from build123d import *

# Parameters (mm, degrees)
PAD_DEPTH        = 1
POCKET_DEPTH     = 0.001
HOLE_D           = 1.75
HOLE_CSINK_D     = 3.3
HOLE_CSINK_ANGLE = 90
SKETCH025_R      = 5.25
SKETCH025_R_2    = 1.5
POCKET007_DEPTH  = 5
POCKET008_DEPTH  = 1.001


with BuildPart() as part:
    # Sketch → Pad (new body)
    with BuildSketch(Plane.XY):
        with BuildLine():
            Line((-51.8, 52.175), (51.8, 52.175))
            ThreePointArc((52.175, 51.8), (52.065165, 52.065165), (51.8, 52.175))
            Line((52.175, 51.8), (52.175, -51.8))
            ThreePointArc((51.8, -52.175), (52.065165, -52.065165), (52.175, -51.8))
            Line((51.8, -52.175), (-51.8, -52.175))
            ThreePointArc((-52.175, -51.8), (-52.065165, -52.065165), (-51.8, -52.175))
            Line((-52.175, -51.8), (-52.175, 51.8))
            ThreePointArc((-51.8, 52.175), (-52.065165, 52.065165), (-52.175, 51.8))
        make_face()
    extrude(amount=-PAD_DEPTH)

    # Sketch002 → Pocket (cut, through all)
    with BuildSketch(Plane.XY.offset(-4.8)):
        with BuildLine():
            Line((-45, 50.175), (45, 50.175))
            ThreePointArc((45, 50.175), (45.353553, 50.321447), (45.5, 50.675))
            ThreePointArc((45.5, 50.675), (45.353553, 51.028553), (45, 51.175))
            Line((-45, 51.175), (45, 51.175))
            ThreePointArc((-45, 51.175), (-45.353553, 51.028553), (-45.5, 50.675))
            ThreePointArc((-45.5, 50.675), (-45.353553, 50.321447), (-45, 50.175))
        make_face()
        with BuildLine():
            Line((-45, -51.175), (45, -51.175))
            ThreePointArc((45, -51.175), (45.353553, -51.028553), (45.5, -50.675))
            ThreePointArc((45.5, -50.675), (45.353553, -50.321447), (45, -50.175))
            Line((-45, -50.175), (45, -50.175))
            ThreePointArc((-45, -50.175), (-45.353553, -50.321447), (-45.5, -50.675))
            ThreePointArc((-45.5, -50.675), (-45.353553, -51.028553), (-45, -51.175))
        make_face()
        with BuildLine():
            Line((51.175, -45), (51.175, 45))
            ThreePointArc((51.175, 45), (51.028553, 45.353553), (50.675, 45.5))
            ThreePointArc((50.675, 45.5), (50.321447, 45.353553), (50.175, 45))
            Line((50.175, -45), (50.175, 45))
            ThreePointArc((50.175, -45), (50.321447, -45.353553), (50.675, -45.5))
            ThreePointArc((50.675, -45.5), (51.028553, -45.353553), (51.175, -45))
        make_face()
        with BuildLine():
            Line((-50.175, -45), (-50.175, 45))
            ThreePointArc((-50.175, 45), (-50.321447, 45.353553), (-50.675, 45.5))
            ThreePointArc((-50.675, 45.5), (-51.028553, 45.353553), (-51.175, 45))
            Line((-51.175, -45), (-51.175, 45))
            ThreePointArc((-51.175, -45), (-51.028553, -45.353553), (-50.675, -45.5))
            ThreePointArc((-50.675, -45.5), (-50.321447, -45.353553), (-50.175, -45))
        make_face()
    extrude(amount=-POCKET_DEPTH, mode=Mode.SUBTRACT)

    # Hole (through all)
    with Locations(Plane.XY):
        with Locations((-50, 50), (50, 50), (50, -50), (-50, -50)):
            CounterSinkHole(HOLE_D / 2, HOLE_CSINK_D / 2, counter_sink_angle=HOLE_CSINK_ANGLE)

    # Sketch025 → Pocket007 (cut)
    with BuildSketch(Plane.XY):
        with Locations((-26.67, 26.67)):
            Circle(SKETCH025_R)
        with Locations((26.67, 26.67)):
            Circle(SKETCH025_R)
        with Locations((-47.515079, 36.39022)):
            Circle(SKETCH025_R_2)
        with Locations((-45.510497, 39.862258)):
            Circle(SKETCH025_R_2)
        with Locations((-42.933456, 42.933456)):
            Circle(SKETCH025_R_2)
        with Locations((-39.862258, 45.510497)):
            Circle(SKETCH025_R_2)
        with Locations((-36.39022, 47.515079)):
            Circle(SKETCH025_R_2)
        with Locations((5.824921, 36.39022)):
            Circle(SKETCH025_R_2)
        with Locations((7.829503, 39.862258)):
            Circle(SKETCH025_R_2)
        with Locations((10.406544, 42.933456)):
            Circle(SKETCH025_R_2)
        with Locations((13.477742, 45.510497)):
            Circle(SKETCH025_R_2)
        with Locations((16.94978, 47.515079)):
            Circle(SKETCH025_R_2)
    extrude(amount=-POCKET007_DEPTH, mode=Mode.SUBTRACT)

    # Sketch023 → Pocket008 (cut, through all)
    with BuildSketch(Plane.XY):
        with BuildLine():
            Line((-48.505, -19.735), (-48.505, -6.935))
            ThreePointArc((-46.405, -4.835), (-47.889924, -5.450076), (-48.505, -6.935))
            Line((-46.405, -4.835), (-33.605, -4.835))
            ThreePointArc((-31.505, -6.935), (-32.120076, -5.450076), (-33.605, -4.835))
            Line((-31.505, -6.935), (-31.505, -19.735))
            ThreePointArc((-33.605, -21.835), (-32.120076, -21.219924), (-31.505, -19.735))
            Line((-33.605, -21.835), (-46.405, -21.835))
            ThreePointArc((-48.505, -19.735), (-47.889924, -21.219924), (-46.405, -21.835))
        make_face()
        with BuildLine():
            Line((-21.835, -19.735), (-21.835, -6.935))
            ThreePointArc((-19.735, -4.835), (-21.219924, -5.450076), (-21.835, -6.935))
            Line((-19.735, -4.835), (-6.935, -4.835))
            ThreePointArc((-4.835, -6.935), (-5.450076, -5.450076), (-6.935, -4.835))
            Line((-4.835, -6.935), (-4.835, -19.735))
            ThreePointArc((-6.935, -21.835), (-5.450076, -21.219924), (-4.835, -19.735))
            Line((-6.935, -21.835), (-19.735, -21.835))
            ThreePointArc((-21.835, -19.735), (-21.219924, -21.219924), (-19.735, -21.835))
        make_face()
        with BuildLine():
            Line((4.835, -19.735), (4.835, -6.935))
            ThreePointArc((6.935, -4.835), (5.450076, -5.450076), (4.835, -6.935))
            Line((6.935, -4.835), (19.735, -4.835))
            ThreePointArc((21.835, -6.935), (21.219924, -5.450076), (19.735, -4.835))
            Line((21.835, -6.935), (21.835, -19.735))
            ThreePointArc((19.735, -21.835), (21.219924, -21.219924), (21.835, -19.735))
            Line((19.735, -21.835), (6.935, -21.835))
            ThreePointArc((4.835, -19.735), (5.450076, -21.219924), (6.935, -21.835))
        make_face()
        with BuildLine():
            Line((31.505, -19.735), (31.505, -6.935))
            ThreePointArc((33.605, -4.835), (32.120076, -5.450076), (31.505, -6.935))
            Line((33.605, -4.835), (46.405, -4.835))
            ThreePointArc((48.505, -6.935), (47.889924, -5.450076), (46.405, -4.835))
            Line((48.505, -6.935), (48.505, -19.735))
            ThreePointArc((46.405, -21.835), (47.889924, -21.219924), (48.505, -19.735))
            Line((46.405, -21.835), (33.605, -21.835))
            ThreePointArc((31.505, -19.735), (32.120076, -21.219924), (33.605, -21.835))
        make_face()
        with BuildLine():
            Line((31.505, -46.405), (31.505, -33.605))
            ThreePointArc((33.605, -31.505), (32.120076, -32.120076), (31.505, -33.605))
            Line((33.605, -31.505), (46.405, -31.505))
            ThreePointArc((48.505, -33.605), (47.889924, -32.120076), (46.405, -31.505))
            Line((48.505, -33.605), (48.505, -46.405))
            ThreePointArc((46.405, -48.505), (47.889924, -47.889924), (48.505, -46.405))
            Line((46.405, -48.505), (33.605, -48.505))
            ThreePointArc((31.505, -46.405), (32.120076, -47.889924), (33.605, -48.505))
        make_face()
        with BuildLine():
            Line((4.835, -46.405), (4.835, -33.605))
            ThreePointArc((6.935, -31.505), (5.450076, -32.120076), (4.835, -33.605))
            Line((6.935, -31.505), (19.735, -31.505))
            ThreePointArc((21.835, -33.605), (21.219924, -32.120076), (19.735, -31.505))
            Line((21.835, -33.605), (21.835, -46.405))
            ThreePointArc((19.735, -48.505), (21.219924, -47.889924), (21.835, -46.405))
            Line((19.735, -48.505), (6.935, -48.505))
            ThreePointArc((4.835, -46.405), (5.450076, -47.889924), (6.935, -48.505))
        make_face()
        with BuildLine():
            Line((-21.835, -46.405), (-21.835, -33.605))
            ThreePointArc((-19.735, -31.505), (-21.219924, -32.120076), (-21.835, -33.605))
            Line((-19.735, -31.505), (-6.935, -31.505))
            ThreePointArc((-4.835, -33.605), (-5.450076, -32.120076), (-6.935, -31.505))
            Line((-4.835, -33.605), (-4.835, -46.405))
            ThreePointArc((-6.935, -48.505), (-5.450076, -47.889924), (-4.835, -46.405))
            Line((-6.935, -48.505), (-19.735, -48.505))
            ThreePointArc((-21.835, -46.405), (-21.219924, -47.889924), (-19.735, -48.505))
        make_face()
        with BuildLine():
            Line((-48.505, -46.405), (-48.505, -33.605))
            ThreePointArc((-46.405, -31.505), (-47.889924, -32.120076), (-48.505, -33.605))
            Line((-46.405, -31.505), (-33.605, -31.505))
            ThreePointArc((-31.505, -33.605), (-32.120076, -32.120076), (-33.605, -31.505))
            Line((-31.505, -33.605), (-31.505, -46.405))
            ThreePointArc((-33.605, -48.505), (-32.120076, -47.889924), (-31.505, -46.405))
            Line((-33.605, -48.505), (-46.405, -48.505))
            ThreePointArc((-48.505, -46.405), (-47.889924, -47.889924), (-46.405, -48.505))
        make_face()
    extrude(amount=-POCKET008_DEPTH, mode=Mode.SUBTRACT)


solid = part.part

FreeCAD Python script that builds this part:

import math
import FreeCAD as App
import Part
import Sketcher
from FreeCAD import Vector

doc = App.newDocument("Part")
params = doc.addObject("Spreadsheet::Sheet", "Params")
for row, (alias, value) in enumerate([
    ("sketch1_width", "103.6 mm"),
    ("pad1_length", "1 mm"),
    ("sketch2_radius", "0.500001 mm"),
    ("sketch2_width", "90 mm"),
    ("sketch3_diameter", "1.75 mm"),
    ("hole_diameter", "1.75 mm"),
    ("hole_csink_diameter", "3.3 mm"),
    ("sketch4_diameter", "3 mm"),
    ("sketch4_diameter2", "10.5 mm"),
    ("pocket2_length", "5 mm"),
    ("sketch5_radius", "2.100001 mm"),
    ("sketch5_width", "12.8 mm"),
], start=1):
    params.set(f"A{row}", alias)
    params.set(f"B{row}", "=" + value)
    params.setAlias(f"B{row}", alias)

body = doc.addObject("PartDesign::Body", "Body")

# Sketch on XY plane
sketch1 = doc.addObject("Sketcher::SketchObject", "Sketch")
body.addObject(sketch1)
sketch1.AttachmentSupport = (doc.XY_Plane, [""])
sketch1.MapMode = "FlatFace"
sketch1.addGeometry(Part.LineSegment(Vector(51.8, 52.17, 0), Vector(-51.8, 52.17, 0)), False)
sketch1.addGeometry(Part.ArcOfCircle(Part.Circle(Vector(-51.8, 51.8, 0), Vector(0, 0, 1), 0.38), math.radians(90), math.radians(180)), False)
sketch1.addGeometry(Part.LineSegment(Vector(-52.17, 51.8, 0), Vector(-52.17, -51.8, 0)), False)
sketch1.addGeometry(Part.ArcOfCircle(Part.Circle(Vector(-51.8, -51.8, 0), Vector(0, 0, 1), 0.38), math.radians(-180), math.radians(-90)), False)
sketch1.addGeometry(Part.LineSegment(Vector(-51.8, -52.17, 0), Vector(51.8, -52.17, 0)), False)
sketch1.addGeometry(Part.ArcOfCircle(Part.Circle(Vector(51.8, -51.8, 0), Vector(0, 0, 1), 0.38), math.radians(-90), math.radians(0)), False)
sketch1.addGeometry(Part.LineSegment(Vector(52.17, -51.8, 0), Vector(52.17, 51.8, 0)), False)
sketch1.addGeometry(Part.ArcOfCircle(Part.Circle(Vector(51.8, 51.8, 0), Vector(0, 0, 1), 0.38), math.radians(0), math.radians(90)), False)
sketch1.addConstraint(Sketcher.Constraint("Tangent", 0, 2, 1, 1))
sketch1.addConstraint(Sketcher.Constraint("Tangent", 1, 2, 2, 1))
sketch1.addConstraint(Sketcher.Constraint("Tangent", 2, 2, 3, 1))
sketch1.addConstraint(Sketcher.Constraint("Tangent", 3, 2, 4, 1))
sketch1.addConstraint(Sketcher.Constraint("Tangent", 4, 2, 5, 1))
sketch1.addConstraint(Sketcher.Constraint("Tangent", 5, 2, 6, 1))
sketch1.addConstraint(Sketcher.Constraint("Tangent", 6, 2, 7, 1))
sketch1.addConstraint(Sketcher.Constraint("Tangent", 7, 2, 0, 1))
sketch1.addConstraint(Sketcher.Constraint("Horizontal", 0))
sketch1.addConstraint(Sketcher.Constraint("Vertical", 2))
sketch1.addConstraint(Sketcher.Constraint("Horizontal", 4))
sketch1.addConstraint(Sketcher.Constraint("Vertical", 6))
sketch1.addConstraint(Sketcher.Constraint("Equal", 1, 3))
sketch1.addConstraint(Sketcher.Constraint("Equal", 3, 5))
sketch1.addConstraint(Sketcher.Constraint("Equal", 5, 7))
sketch1.addConstraint(Sketcher.Constraint("Symmetric", 1, 3, 5, 3, -1, 1))
sketch1.addConstraint(Sketcher.Constraint("Equal", 4, 2))
sketch1.addConstraint(Sketcher.Constraint("DistanceX", 0, 2, 0, 1, 103.6))
sketch1.addConstraint(Sketcher.Constraint("Radius", 1, 0.375))
sketch1.setExpression("Constraints[17]", "Params.sketch1_width")
pad1 = doc.addObject("PartDesign::Pad", "Pad")
body.addObject(pad1)
pad1.Profile = sketch1
pad1.setExpression("Length", "Params.pad1_length")
pad1.Reversed = True

# Sketch on XY plane
sketch2 = doc.addObject("Sketcher::SketchObject", "Sketch001")
body.addObject(sketch2)
sketch2.AttachmentSupport = (doc.XY_Plane, [""])
sketch2.MapMode = "FlatFace"
sketch2.AttachmentOffset = App.Placement(Vector(0, 0, -4.8), App.Rotation())
sketch2.addGeometry(Part.LineSegment(Vector(-45, 50.2, 0), Vector(45, 50.2, 0)), False)
sketch2.addGeometry(Part.ArcOfCircle(Part.Circle(Vector(45, 50.7, 0), Vector(0, 0, 1), 0.5), math.radians(-90), math.radians(0)), False)
sketch2.addGeometry(Part.ArcOfCircle(Part.Circle(Vector(45, 50.7, 0), Vector(0, 0, 1), 0.5), math.radians(0), math.radians(90)), False)
sketch2.addGeometry(Part.LineSegment(Vector(45, 51.2, 0), Vector(-45, 51.2, 0)), False)
sketch2.addGeometry(Part.ArcOfCircle(Part.Circle(Vector(-45, 50.7, 0), Vector(0, 0, 1), 0.5), math.radians(90), math.radians(180)), False)
sketch2.addGeometry(Part.ArcOfCircle(Part.Circle(Vector(-45, 50.7, 0), Vector(0, 0, 1), 0.5), math.radians(-180), math.radians(-90)), False)
sketch2.addGeometry(Part.LineSegment(Vector(-45, -51.2, 0), Vector(45, -51.2, 0)), False)
sketch2.addGeometry(Part.ArcOfCircle(Part.Circle(Vector(45, -50.7, 0), Vector(0, 0, 1), 0.5), math.radians(-90), math.radians(0)), False)
sketch2.addGeometry(Part.ArcOfCircle(Part.Circle(Vector(45, -50.7, 0), Vector(0, 0, 1), 0.5), math.radians(0), math.radians(90)), False)
sketch2.addGeometry(Part.LineSegment(Vector(45, -50.2, 0), Vector(-45, -50.2, 0)), False)
sketch2.addGeometry(Part.ArcOfCircle(Part.Circle(Vector(-45, -50.7, 0), Vector(0, 0, 1), 0.5), math.radians(90), math.radians(180)), False)
sketch2.addGeometry(Part.ArcOfCircle(Part.Circle(Vector(-45, -50.7, 0), Vector(0, 0, 1), 0.5), math.radians(-180), math.radians(-90)), False)
sketch2.addGeometry(Part.LineSegment(Vector(51.2, -45, 0), Vector(51.2, 45, 0)), False)
sketch2.addGeometry(Part.ArcOfCircle(Part.Circle(Vector(50.7, 45, 0), Vector(0, 0, 1), 0.5), math.radians(0), math.radians(90)), False)
sketch2.addGeometry(Part.ArcOfCircle(Part.Circle(Vector(50.7, 45, 0), Vector(0, 0, 1), 0.5), math.radians(90), math.radians(180)), False)
sketch2.addGeometry(Part.LineSegment(Vector(50.2, 45, 0), Vector(50.2, -45, 0)), False)
sketch2.addGeometry(Part.ArcOfCircle(Part.Circle(Vector(50.7, -45, 0), Vector(0, 0, 1), 0.5), math.radians(-180), math.radians(-90)), False)
sketch2.addGeometry(Part.ArcOfCircle(Part.Circle(Vector(50.7, -45, 0), Vector(0, 0, 1), 0.5), math.radians(-90), math.radians(0)), False)
sketch2.addGeometry(Part.LineSegment(Vector(-50.2, -45, 0), Vector(-50.2, 45, 0)), False)
sketch2.addGeometry(Part.ArcOfCircle(Part.Circle(Vector(-50.7, 45, 0), Vector(0, 0, 1), 0.5), math.radians(0), math.radians(90)), False)
sketch2.addGeometry(Part.ArcOfCircle(Part.Circle(Vector(-50.7, 45, 0), Vector(0, 0, 1), 0.5), math.radians(90), math.radians(180)), False)
sketch2.addGeometry(Part.LineSegment(Vector(-51.2, 45, 0), Vector(-51.2, -45, 0)), False)
sketch2.addGeometry(Part.ArcOfCircle(Part.Circle(Vector(-50.7, -45, 0), Vector(0, 0, 1), 0.5), math.radians(-180), math.radians(-90)), False)
sketch2.addGeometry(Part.ArcOfCircle(Part.Circle(Vector(-50.7, -45, 0), Vector(0, 0, 1), 0.5), math.radians(-90), math.radians(0)), False)
sketch2.addConstraint(Sketcher.Constraint("Coincident", 0, 2, 1, 1))
sketch2.addConstraint(Sketcher.Constraint("Coincident", 1, 2, 2, 1))
sketch2.addConstraint(Sketcher.Constraint("Coincident", 2, 2, 3, 1))
sketch2.addConstraint(Sketcher.Constraint("Coincident", 3, 2, 4, 1))
sketch2.addConstraint(Sketcher.Constraint("Coincident", 4, 2, 5, 1))
sketch2.addConstraint(Sketcher.Constraint("Coincident", 5, 2, 0, 1))
sketch2.addConstraint(Sketcher.Constraint("Coincident", 6, 2, 7, 1))
sketch2.addConstraint(Sketcher.Constraint("Coincident", 7, 2, 8, 1))
sketch2.addConstraint(Sketcher.Constraint("Coincident", 8, 2, 9, 1))
sketch2.addConstraint(Sketcher.Constraint("Coincident", 9, 2, 10, 1))
sketch2.addConstraint(Sketcher.Constraint("Coincident", 10, 2, 11, 1))
sketch2.addConstraint(Sketcher.Constraint("Coincident", 11, 2, 6, 1))
sketch2.addConstraint(Sketcher.Constraint("Coincident", 12, 2, 13, 1))
sketch2.addConstraint(Sketcher.Constraint("Coincident", 13, 2, 14, 1))
sketch2.addConstraint(Sketcher.Constraint("Coincident", 14, 2, 15, 1))
sketch2.addConstraint(Sketcher.Constraint("Coincident", 15, 2, 16, 1))
sketch2.addConstraint(Sketcher.Constraint("Coincident", 16, 2, 17, 1))
sketch2.addConstraint(Sketcher.Constraint("Coincident", 17, 2, 12, 1))
sketch2.addConstraint(Sketcher.Constraint("Coincident", 18, 2, 19, 1))
sketch2.addConstraint(Sketcher.Constraint("Coincident", 19, 2, 20, 1))
sketch2.addConstraint(Sketcher.Constraint("Coincident", 20, 2, 21, 1))
sketch2.addConstraint(Sketcher.Constraint("Coincident", 21, 2, 22, 1))
sketch2.addConstraint(Sketcher.Constraint("Coincident", 22, 2, 23, 1))
sketch2.addConstraint(Sketcher.Constraint("Coincident", 23, 2, 18, 1))
sketch2.addConstraint(Sketcher.Constraint("Horizontal", 0))
sketch2.addConstraint(Sketcher.Constraint("Horizontal", 3))
sketch2.addConstraint(Sketcher.Constraint("Horizontal", 6))
sketch2.addConstraint(Sketcher.Constraint("Horizontal", 9))
sketch2.addConstraint(Sketcher.Constraint("Vertical", 12))
sketch2.addConstraint(Sketcher.Constraint("Vertical", 15))
sketch2.addConstraint(Sketcher.Constraint("Vertical", 18))
sketch2.addConstraint(Sketcher.Constraint("Vertical", 21))
sketch2.addConstraint(Sketcher.Constraint("Coincident", 2, 3, 1, 3))
sketch2.addConstraint(Sketcher.Constraint("Coincident", 5, 3, 4, 3))
sketch2.addConstraint(Sketcher.Constraint("Coincident", 8, 3, 7, 3))
sketch2.addConstraint(Sketcher.Constraint("Coincident", 11, 3, 10, 3))
sketch2.addConstraint(Sketcher.Constraint("Coincident", 14, 3, 13, 3))
sketch2.addConstraint(Sketcher.Constraint("Coincident", 17, 3, 16, 3))
sketch2.addConstraint(Sketcher.Constraint("Coincident", 20, 3, 19, 3))
sketch2.addConstraint(Sketcher.Constraint("Coincident", 23, 3, 22, 3))
sketch2.addConstraint(Sketcher.Constraint("Equal", 5, 7))
sketch2.addConstraint(Sketcher.Constraint("Equal", 11, 13))
sketch2.addConstraint(Sketcher.Constraint("Equal", 17, 19))
sketch2.addConstraint(Sketcher.Constraint("Symmetric", 4, 3, 7, 3, -1, 1))
sketch2.addConstraint(Sketcher.Constraint("Symmetric", 16, 3, 19, 3, -1, 1))
sketch2.addConstraint(Sketcher.Constraint("Symmetric", 1, 2, 10, 2, -1, 1))
sketch2.addConstraint(Sketcher.Constraint("Symmetric", 13, 2, 22, 2, -1, 1))
sketch2.addConstraint(Sketcher.Constraint("Symmetric", 1, 2, 4, 2, -2))
sketch2.addConstraint(Sketcher.Constraint("Symmetric", 13, 2, 19, 2, -2))
sketch2.addConstraint(Sketcher.Constraint("Horizontal", 5, 3, 1, 2))
sketch2.addConstraint(Sketcher.Constraint("Horizontal", 11, 3, 7, 2))
sketch2.addConstraint(Sketcher.Constraint("Horizontal", 20, 3, 12, 2))
sketch2.addConstraint(Sketcher.Constraint("Horizontal", 12, 2, 14, 2))
sketch2.addConstraint(Sketcher.Constraint("Horizontal", 23, 3, 15, 2))
sketch2.addConstraint(Sketcher.Constraint("Horizontal", 15, 2, 17, 2))
sketch2.addConstraint(Sketcher.Constraint("Horizontal", 14, 2, 18, 2))
sketch2.addConstraint(Sketcher.Constraint("Horizontal", 18, 2, 20, 2))
sketch2.addConstraint(Sketcher.Constraint("Horizontal", 17, 2, 21, 2))
sketch2.addConstraint(Sketcher.Constraint("Horizontal", 21, 2, 23, 2))
sketch2.addConstraint(Sketcher.Constraint("Vertical", 8, 3, 0, 2))
sketch2.addConstraint(Sketcher.Constraint("Vertical", 0, 2, 2, 2))
sketch2.addConstraint(Sketcher.Constraint("Vertical", 11, 3, 3, 2))
sketch2.addConstraint(Sketcher.Constraint("Vertical", 3, 2, 5, 2))
sketch2.addConstraint(Sketcher.Constraint("Vertical", 2, 2, 6, 2))
sketch2.addConstraint(Sketcher.Constraint("Vertical", 6, 2, 8, 2))
sketch2.addConstraint(Sketcher.Constraint("Vertical", 5, 2, 9, 2))
sketch2.addConstraint(Sketcher.Constraint("Vertical", 9, 2, 11, 2))
sketch2.addConstraint(Sketcher.Constraint("Vertical", 17, 3, 13, 2))
sketch2.addConstraint(Sketcher.Constraint("Vertical", 13, 2, 16, 2))
sketch2.addConstraint(Sketcher.Constraint("Equal", 9, 12))
sketch2.addConstraint(Sketcher.Constraint("Radius", 1, 0.500001))
sketch2.addConstraint(Sketcher.Constraint("DistanceX", 0, 1, 0, 2, 90.0))
sketch2.addConstraint(Sketcher.Constraint("DistanceY", 7, 3, 1, 3, 101.35))
sketch2.addConstraint(Sketcher.Constraint("DistanceX", -1, 1, 13, 3, 50.674999))
sketch2.setExpression("Constraints[70]", "Params.sketch2_radius")
sketch2.setExpression("Constraints[71]", "Params.sketch2_width")
pocket1 = doc.addObject("PartDesign::Pocket", "Pocket")
body.addObject(pocket1)
pocket1.Profile = sketch2
pocket1.Type = "ThroughAll"

# Sketch on XY plane
sketch3 = doc.addObject("Sketcher::SketchObject", "Sketch002")
body.addObject(sketch3)
sketch3.AttachmentSupport = (doc.XY_Plane, [""])
sketch3.MapMode = "FlatFace"
sketch3.addGeometry(Part.Circle(Vector(-50, 50, 0), Vector(0, 0, 1), 0.9), False)
sketch3.addGeometry(Part.Circle(Vector(50, 50, 0), Vector(0, 0, 1), 0.9), False)
sketch3.addGeometry(Part.Circle(Vector(50, -50, 0), Vector(0, 0, 1), 0.9), False)
sketch3.addGeometry(Part.Circle(Vector(-50, -50, 0), Vector(0, 0, 1), 0.9), False)
sketch3.addConstraint(Sketcher.Constraint("Equal", 0, 1))
sketch3.addConstraint(Sketcher.Constraint("Equal", 1, 2))
sketch3.addConstraint(Sketcher.Constraint("Equal", 2, 3))
sketch3.addConstraint(Sketcher.Constraint("Symmetric", 0, 3, 2, 3, -1, 1))
sketch3.addConstraint(Sketcher.Constraint("Symmetric", 1, 3, 3, 3, -1, 1))
sketch3.addConstraint(Sketcher.Constraint("Symmetric", 0, 3, 1, 3, -2))
sketch3.addConstraint(Sketcher.Constraint("Diameter", 0, 1.75))
sketch3.addConstraint(Sketcher.Constraint("DistanceX", 0, 3, -1, 1, 50.0))
sketch3.addConstraint(Sketcher.Constraint("DistanceY", -1, 1, 0, 3, 50.0))
sketch3.setExpression("Constraints[6]", "Params.sketch3_diameter")
doc.recompute()
hole = doc.addObject("PartDesign::Hole", "Hole")
body.addObject(hole)
hole.Profile = sketch3
hole.ThreadType = "None"
hole.setExpression("Diameter", "Params.hole_diameter")
hole.DepthType = "ThroughAll"
hole.HoleCutType = "Countersink"
hole.setExpression("HoleCutDiameter", "Params.hole_csink_diameter")
hole.HoleCutCountersinkAngle = 90

# Sketch on XY plane
sketch4 = doc.addObject("Sketcher::SketchObject", "Sketch003")
body.addObject(sketch4)
sketch4.AttachmentSupport = (doc.XY_Plane, [""])
sketch4.MapMode = "FlatFace"
sketch4.addGeometry(Part.Circle(Vector(-26.7, 26.7, 0), Vector(0, 0, 1), 5.2), False)
sketch4.addGeometry(Part.Circle(Vector(26.7, 26.7, 0), Vector(0, 0, 1), 5.2), False)
sketch4.addGeometry(Part.Circle(Vector(-47.5, 36.4, 0), Vector(0, 0, 1), 1.5), False)
sketch4.addGeometry(Part.Circle(Vector(-45.5, 39.9, 0), Vector(0, 0, 1), 1.5), False)
sketch4.addGeometry(Part.Circle(Vector(-42.9, 42.9, 0), Vector(0, 0, 1), 1.5), False)
sketch4.addGeometry(Part.Circle(Vector(-39.9, 45.5, 0), Vector(0, 0, 1), 1.5), False)
sketch4.addGeometry(Part.Circle(Vector(-36.4, 47.5, 0), Vector(0, 0, 1), 1.5), False)
sketch4.addGeometry(Part.Circle(Vector(5.8, 36.4, 0), Vector(0, 0, 1), 1.5), False)
sketch4.addGeometry(Part.Circle(Vector(7.8, 39.9, 0), Vector(0, 0, 1), 1.5), False)
sketch4.addGeometry(Part.Circle(Vector(10.4, 42.9, 0), Vector(0, 0, 1), 1.5), False)
sketch4.addGeometry(Part.Circle(Vector(13.5, 45.5, 0), Vector(0, 0, 1), 1.5), False)
sketch4.addGeometry(Part.Circle(Vector(16.9, 47.5, 0), Vector(0, 0, 1), 1.5), False)
sketch4.addConstraint(Sketcher.Constraint("Equal", 0, 1))
sketch4.addConstraint(Sketcher.Constraint("Equal", 2, 3))
sketch4.addConstraint(Sketcher.Constraint("Equal", 3, 4))
sketch4.addConstraint(Sketcher.Constraint("Equal", 4, 5))
sketch4.addConstraint(Sketcher.Constraint("Equal", 5, 6))
sketch4.addConstraint(Sketcher.Constraint("Equal", 6, 7))
sketch4.addConstraint(Sketcher.Constraint("Equal", 7, 8))
sketch4.addConstraint(Sketcher.Constraint("Equal", 8, 9))
sketch4.addConstraint(Sketcher.Constraint("Equal", 9, 10))
sketch4.addConstraint(Sketcher.Constraint("Equal", 10, 11))
sketch4.addConstraint(Sketcher.Constraint("Symmetric", 0, 3, 1, 3, -2))
sketch4.addConstraint(Sketcher.Constraint("Horizontal", 2, 3, 7, 3))
sketch4.addConstraint(Sketcher.Constraint("Horizontal", 3, 3, 8, 3))
sketch4.addConstraint(Sketcher.Constraint("Horizontal", 4, 3, 9, 3))
sketch4.addConstraint(Sketcher.Constraint("Horizontal", 5, 3, 10, 3))
sketch4.addConstraint(Sketcher.Constraint("Horizontal", 6, 3, 11, 3))
sketch4.addConstraint(Sketcher.Constraint("Diameter", 2, 3.0))
sketch4.addConstraint(Sketcher.Constraint("Diameter", 0, 10.5))
sketch4.addConstraint(Sketcher.Constraint("DistanceX", 0, 3, -1, 1, 26.67))
sketch4.addConstraint(Sketcher.Constraint("DistanceY", -1, 1, 0, 3, 26.67))
sketch4.addConstraint(Sketcher.Constraint("DistanceY", 3, 3, 4, 3, 3.071198))
sketch4.addConstraint(Sketcher.Constraint("DistanceX", 4, 3, 5, 3, 3.071198))
sketch4.addConstraint(Sketcher.Constraint("DistanceX", 2, 3, -1, 1, 47.515079))
sketch4.addConstraint(Sketcher.Constraint("DistanceY", -1, 1, 2, 3, 36.39022))
sketch4.addConstraint(Sketcher.Constraint("DistanceX", 6, 3, -1, 1, 36.39022))
sketch4.addConstraint(Sketcher.Constraint("DistanceY", -1, 1, 6, 3, 47.515079))
sketch4.addConstraint(Sketcher.Constraint("DistanceX", -1, 1, 7, 3, 5.824921))
sketch4.addConstraint(Sketcher.Constraint("DistanceX", -1, 1, 10, 3, 13.477742))
sketch4.addConstraint(Sketcher.Constraint("DistanceX", -1, 1, 11, 3, 16.94978))
sketch4.addConstraint(Sketcher.Constraint("DistanceX", 2, 3, 3, 3, 2.004582))
sketch4.addConstraint(Sketcher.Constraint("DistanceX", 3, 3, 4, 3, 2.577041))
sketch4.addConstraint(Sketcher.Constraint("DistanceY", 4, 3, 5, 3, 2.577041))
sketch4.addConstraint(Sketcher.Constraint("DistanceY", 5, 3, 6, 3, 2.004582))
sketch4.addConstraint(Sketcher.Constraint("DistanceX", 5, 3, 8, 3, 47.691761))
sketch4.addConstraint(Sketcher.Constraint("DistanceX", 8, 3, 9, 3, 2.577041))
sketch4.setExpression("Constraints[16]", "Params.sketch4_diameter")
sketch4.setExpression("Constraints[17]", "Params.sketch4_diameter2")
pocket2 = doc.addObject("PartDesign::Pocket", "Pocket001")
body.addObject(pocket2)
pocket2.Profile = sketch4
pocket2.setExpression("Length", "Params.pocket2_length")

# Sketch on XY plane
sketch5 = doc.addObject("Sketcher::SketchObject", "Sketch004")
body.addObject(sketch5)
sketch5.AttachmentSupport = (doc.XY_Plane, [""])
sketch5.MapMode = "FlatFace"
sketch5.addGeometry(Part.LineSegment(Vector(-48.5, -6.9, 0), Vector(-48.5, -19.7, 0)), False)
sketch5.addGeometry(Part.ArcOfCircle(Part.Circle(Vector(-46.4, -19.7, 0), Vector(0, 0, 1), 2.1), math.radians(-180), math.radians(-90)), False)
sketch5.addGeometry(Part.LineSegment(Vector(-46.4, -21.8, 0), Vector(-33.6, -21.8, 0)), False)
sketch5.addGeometry(Part.ArcOfCircle(Part.Circle(Vector(-33.6, -19.7, 0), Vector(0, 0, 1), 2.1), math.radians(-90), math.radians(0)), False)
sketch5.addGeometry(Part.LineSegment(Vector(-31.5, -19.7, 0), Vector(-31.5, -6.9, 0)), False)
sketch5.addGeometry(Part.ArcOfCircle(Part.Circle(Vector(-33.6, -6.9, 0), Vector(0, 0, 1), 2.1), math.radians(0), math.radians(90)), False)
sketch5.addGeometry(Part.LineSegment(Vector(-33.6, -4.8, 0), Vector(-46.4, -4.8, 0)), False)
sketch5.addGeometry(Part.ArcOfCircle(Part.Circle(Vector(-46.4, -6.9, 0), Vector(0, 0, 1), 2.1), math.radians(90), math.radians(180)), False)
sketch5.addGeometry(Part.LineSegment(Vector(-21.8, -6.9, 0), Vector(-21.8, -19.7, 0)), False)
sketch5.addGeometry(Part.ArcOfCircle(Part.Circle(Vector(-19.7, -19.7, 0), Vector(0, 0, 1), 2.1), math.radians(-180), math.radians(-90)), False)
sketch5.addGeometry(Part.LineSegment(Vector(-19.7, -21.8, 0), Vector(-6.9, -21.8, 0)), False)
sketch5.addGeometry(Part.ArcOfCircle(Part.Circle(Vector(-6.9, -19.7, 0), Vector(0, 0, 1), 2.1), math.radians(-90), math.radians(0)), False)
sketch5.addGeometry(Part.LineSegment(Vector(-4.8, -19.7, 0), Vector(-4.8, -6.9, 0)), False)
sketch5.addGeometry(Part.ArcOfCircle(Part.Circle(Vector(-6.9, -6.9, 0), Vector(0, 0, 1), 2.1), math.radians(0), math.radians(90)), False)
sketch5.addGeometry(Part.LineSegment(Vector(-6.9, -4.8, 0), Vector(-19.7, -4.8, 0)), False)
sketch5.addGeometry(Part.ArcOfCircle(Part.Circle(Vector(-19.7, -6.9, 0), Vector(0, 0, 1), 2.1), math.radians(90), math.radians(180)), False)
sketch5.addGeometry(Part.LineSegment(Vector(4.8, -6.9, 0), Vector(4.8, -19.7, 0)), False)
sketch5.addGeometry(Part.ArcOfCircle(Part.Circle(Vector(6.9, -19.7, 0), Vector(0, 0, 1), 2.1), math.radians(-180), math.radians(-90)), False)
sketch5.addGeometry(Part.LineSegment(Vector(6.9, -21.8, 0), Vector(19.7, -21.8, 0)), False)
sketch5.addGeometry(Part.ArcOfCircle(Part.Circle(Vector(19.7, -19.7, 0), Vector(0, 0, 1), 2.1), math.radians(-90), math.radians(0)), False)
sketch5.addGeometry(Part.LineSegment(Vector(21.8, -19.7, 0), Vector(21.8, -6.9, 0)), False)
sketch5.addGeometry(Part.ArcOfCircle(Part.Circle(Vector(19.7, -6.9, 0), Vector(0, 0, 1), 2.1), math.radians(0), math.radians(90)), False)
sketch5.addGeometry(Part.LineSegment(Vector(19.7, -4.8, 0), Vector(6.9, -4.8, 0)), False)
sketch5.addGeometry(Part.ArcOfCircle(Part.Circle(Vector(6.9, -6.9, 0), Vector(0, 0, 1), 2.1), math.radians(90), math.radians(180)), False)
sketch5.addGeometry(Part.LineSegment(Vector(31.5, -6.9, 0), Vector(31.5, -19.7, 0)), False)
sketch5.addGeometry(Part.ArcOfCircle(Part.Circle(Vector(33.6, -19.7, 0), Vector(0, 0, 1), 2.1), math.radians(-180), math.radians(-90)), False)
sketch5.addGeometry(Part.LineSegment(Vector(33.6, -21.8, 0), Vector(46.4, -21.8, 0)), False)
sketch5.addGeometry(Part.ArcOfCircle(Part.Circle(Vector(46.4, -19.7, 0), Vector(0, 0, 1), 2.1), math.radians(-90), math.radians(0)), False)
sketch5.addGeometry(Part.LineSegment(Vector(48.5, -19.7, 0), Vector(48.5, -6.9, 0)), False)
sketch5.addGeometry(Part.ArcOfCircle(Part.Circle(Vector(46.4, -6.9, 0), Vector(0, 0, 1), 2.1), math.radians(0), math.radians(90)), False)
sketch5.addGeometry(Part.LineSegment(Vector(46.4, -4.8, 0), Vector(33.6, -4.8, 0)), False)
sketch5.addGeometry(Part.ArcOfCircle(Part.Circle(Vector(33.6, -6.9, 0), Vector(0, 0, 1), 2.1), math.radians(90), math.radians(180)), False)
sketch5.addGeometry(Part.LineSegment(Vector(31.5, -33.6, 0), Vector(31.5, -46.4, 0)), False)
sketch5.addGeometry(Part.ArcOfCircle(Part.Circle(Vector(33.6, -46.4, 0), Vector(0, 0, 1), 2.1), math.radians(-180), math.radians(-90)), False)
sketch5.addGeometry(Part.LineSegment(Vector(33.6, -48.5, 0), Vector(46.4, -48.5, 0)), False)
sketch5.addGeometry(Part.ArcOfCircle(Part.Circle(Vector(46.4, -46.4, 0), Vector(0, 0, 1), 2.1), math.radians(-90), math.radians(0)), False)
sketch5.addGeometry(Part.LineSegment(Vector(48.5, -46.4, 0), Vector(48.5, -33.6, 0)), False)
sketch5.addGeometry(Part.ArcOfCircle(Part.Circle(Vector(46.4, -33.6, 0), Vector(0, 0, 1), 2.1), math.radians(0), math.radians(90)), False)
sketch5.addGeometry(Part.LineSegment(Vector(46.4, -31.5, 0), Vector(33.6, -31.5, 0)), False)
sketch5.addGeometry(Part.ArcOfCircle(Part.Circle(Vector(33.6, -33.6, 0), Vector(0, 0, 1), 2.1), math.radians(90), math.radians(180)), False)
sketch5.addGeometry(Part.LineSegment(Vector(4.8, -33.6, 0), Vector(4.8, -46.4, 0)), False)
sketch5.addGeometry(Part.ArcOfCircle(Part.Circle(Vector(6.9, -46.4, 0), Vector(0, 0, 1), 2.1), math.radians(-180), math.radians(-90)), False)
sketch5.addGeometry(Part.LineSegment(Vector(6.9, -48.5, 0), Vector(19.7, -48.5, 0)), False)
sketch5.addGeometry(Part.ArcOfCircle(Part.Circle(Vector(19.7, -46.4, 0), Vector(0, 0, 1), 2.1), math.radians(-90), math.radians(0)), False)
sketch5.addGeometry(Part.LineSegment(Vector(21.8, -46.4, 0), Vector(21.8, -33.6, 0)), False)
sketch5.addGeometry(Part.ArcOfCircle(Part.Circle(Vector(19.7, -33.6, 0), Vector(0, 0, 1), 2.1), math.radians(0), math.radians(90)), False)
sketch5.addGeometry(Part.LineSegment(Vector(19.7, -31.5, 0), Vector(6.9, -31.5, 0)), False)
sketch5.addGeometry(Part.ArcOfCircle(Part.Circle(Vector(6.9, -33.6, 0), Vector(0, 0, 1), 2.1), math.radians(90), math.radians(180)), False)
sketch5.addGeometry(Part.LineSegment(Vector(-21.8, -33.6, 0), Vector(-21.8, -46.4, 0)), False)
sketch5.addGeometry(Part.ArcOfCircle(Part.Circle(Vector(-19.7, -46.4, 0), Vector(0, 0, 1), 2.1), math.radians(-180), math.radians(-90)), False)
sketch5.addGeometry(Part.LineSegment(Vector(-19.7, -48.5, 0), Vector(-6.9, -48.5, 0)), False)
sketch5.addGeometry(Part.ArcOfCircle(Part.Circle(Vector(-6.9, -46.4, 0), Vector(0, 0, 1), 2.1), math.radians(-90), math.radians(0)), False)
sketch5.addGeometry(Part.LineSegment(Vector(-4.8, -46.4, 0), Vector(-4.8, -33.6, 0)), False)
sketch5.addGeometry(Part.ArcOfCircle(Part.Circle(Vector(-6.9, -33.6, 0), Vector(0, 0, 1), 2.1), math.radians(0), math.radians(90)), False)
sketch5.addGeometry(Part.LineSegment(Vector(-6.9, -31.5, 0), Vector(-19.7, -31.5, 0)), False)
sketch5.addGeometry(Part.ArcOfCircle(Part.Circle(Vector(-19.7, -33.6, 0), Vector(0, 0, 1), 2.1), math.radians(90), math.radians(180)), False)
sketch5.addGeometry(Part.LineSegment(Vector(-48.5, -33.6, 0), Vector(-48.5, -46.4, 0)), False)
sketch5.addGeometry(Part.ArcOfCircle(Part.Circle(Vector(-46.4, -46.4, 0), Vector(0, 0, 1), 2.1), math.radians(-180), math.radians(-90)), False)
sketch5.addGeometry(Part.LineSegment(Vector(-46.4, -48.5, 0), Vector(-33.6, -48.5, 0)), False)
sketch5.addGeometry(Part.ArcOfCircle(Part.Circle(Vector(-33.6, -46.4, 0), Vector(0, 0, 1), 2.1), math.radians(-90), math.radians(0)), False)
sketch5.addGeometry(Part.LineSegment(Vector(-31.5, -46.4, 0), Vector(-31.5, -33.6, 0)), False)
sketch5.addGeometry(Part.ArcOfCircle(Part.Circle(Vector(-33.6, -33.6, 0), Vector(0, 0, 1), 2.1), math.radians(0), math.radians(90)), False)
sketch5.addGeometry(Part.LineSegment(Vector(-33.6, -31.5, 0), Vector(-46.4, -31.5, 0)), False)
sketch5.addGeometry(Part.ArcOfCircle(Part.Circle(Vector(-46.4, -33.6, 0), Vector(0, 0, 1), 2.1), math.radians(90), math.radians(180)), False)
sketch5.addConstraint(Sketcher.Constraint("Tangent", 0, 2, 1, 1))
sketch5.addConstraint(Sketcher.Constraint("Tangent", 1, 2, 2, 1))
sketch5.addConstraint(Sketcher.Constraint("Tangent", 2, 2, 3, 1))
sketch5.addConstraint(Sketcher.Constraint("Tangent", 3, 2, 4, 1))
sketch5.addConstraint(Sketcher.Constraint("Tangent", 4, 2, 5, 1))
sketch5.addConstraint(Sketcher.Constraint("Tangent", 5, 2, 6, 1))
sketch5.addConstraint(Sketcher.Constraint("Tangent", 6, 2, 7, 1))
sketch5.addConstraint(Sketcher.Constraint("Tangent", 7, 2, 0, 1))
sketch5.addConstraint(Sketcher.Constraint("Tangent", 8, 2, 9, 1))
sketch5.addConstraint(Sketcher.Constraint("Tangent", 9, 2, 10, 1))
sketch5.addConstraint(Sketcher.Constraint("Tangent", 10, 2, 11, 1))
sketch5.addConstraint(Sketcher.Constraint("Tangent", 11, 2, 12, 1))
sketch5.addConstraint(Sketcher.Constraint("Tangent", 12, 2, 13, 1))
sketch5.addConstraint(Sketcher.Constraint("Tangent", 13, 2, 14, 1))
sketch5.addConstraint(Sketcher.Constraint("Tangent", 14, 2, 15, 1))
sketch5.addConstraint(Sketcher.Constraint("Tangent", 15, 2, 8, 1))
sketch5.addConstraint(Sketcher.Constraint("Tangent", 16, 2, 17, 1))
sketch5.addConstraint(Sketcher.Constraint("Tangent", 17, 2, 18, 1))
sketch5.addConstraint(Sketcher.Constraint("Tangent", 18, 2, 19, 1))
sketch5.addConstraint(Sketcher.Constraint("Tangent", 19, 2, 20, 1))
sketch5.addConstraint(Sketcher.Constraint("Tangent", 20, 2, 21, 1))
sketch5.addConstraint(Sketcher.Constraint("Tangent", 21, 2, 22, 1))
sketch5.addConstraint(Sketcher.Constraint("Tangent", 22, 2, 23, 1))
sketch5.addConstraint(Sketcher.Constraint("Tangent", 23, 2, 16, 1))
sketch5.addConstraint(Sketcher.Constraint("Tangent", 24, 2, 25, 1))
sketch5.addConstraint(Sketcher.Constraint("Tangent", 25, 2, 26, 1))
sketch5.addConstraint(Sketcher.Constraint("Tangent", 26, 2, 27, 1))
sketch5.addConstraint(Sketcher.Constraint("Tangent", 27, 2, 28, 1))
sketch5.addConstraint(Sketcher.Constraint("Tangent", 28, 2, 29, 1))
sketch5.addConstraint(Sketcher.Constraint("Tangent", 29, 2, 30, 1))
sketch5.addConstraint(Sketcher.Constraint("Tangent", 30, 2, 31, 1))
sketch5.addConstraint(Sketcher.Constraint("Tangent", 31, 2, 24, 1))
sketch5.addConstraint(Sketcher.Constraint("Tangent", 32, 2, 33, 1))
sketch5.addConstraint(Sketcher.Constraint("Tangent", 33, 2, 34, 1))
sketch5.addConstraint(Sketcher.Constraint("Tangent", 34, 2, 35, 1))
sketch5.addConstraint(Sketcher.Constraint("Tangent", 35, 2, 36, 1))
sketch5.addConstraint(Sketcher.Constraint("Tangent", 36, 2, 37, 1))
sketch5.addConstraint(Sketcher.Constraint("Tangent", 37, 2, 38, 1))
sketch5.addConstraint(Sketcher.Constraint("Tangent", 38, 2, 39, 1))
sketch5.addConstraint(Sketcher.Constraint("Tangent", 39, 2, 32, 1))
sketch5.addConstraint(Sketcher.Constraint("Tangent", 40, 2, 41, 1))
sketch5.addConstraint(Sketcher.Constraint("Tangent", 41, 2, 42, 1))
sketch5.addConstraint(Sketcher.Constraint("Tangent", 42, 2, 43, 1))
sketch5.addConstraint(Sketcher.Constraint("Tangent", 43, 2, 44, 1))
sketch5.addConstraint(Sketcher.Constraint("Tangent", 44, 2, 45, 1))
sketch5.addConstraint(Sketcher.Constraint("Tangent", 45, 2, 46, 1))
sketch5.addConstraint(Sketcher.Constraint("Tangent", 46, 2, 47, 1))
sketch5.addConstraint(Sketcher.Constraint("Tangent", 47, 2, 40, 1))
sketch5.addConstraint(Sketcher.Constraint("Tangent", 48, 2, 49, 1))
sketch5.addConstraint(Sketcher.Constraint("Tangent", 49, 2, 50, 1))
sketch5.addConstraint(Sketcher.Constraint("Tangent", 50, 2, 51, 1))
sketch5.addConstraint(Sketcher.Constraint("Tangent", 51, 2, 52, 1))
sketch5.addConstraint(Sketcher.Constraint("Tangent", 52, 2, 53, 1))
sketch5.addConstraint(Sketcher.Constraint("Tangent", 53, 2, 54, 1))
sketch5.addConstraint(Sketcher.Constraint("Tangent", 54, 2, 55, 1))
sketch5.addConstraint(Sketcher.Constraint("Tangent", 55, 2, 48, 1))
sketch5.addConstraint(Sketcher.Constraint("Tangent", 56, 2, 57, 1))
sketch5.addConstraint(Sketcher.Constraint("Tangent", 57, 2, 58, 1))
sketch5.addConstraint(Sketcher.Constraint("Tangent", 58, 2, 59, 1))
sketch5.addConstraint(Sketcher.Constraint("Tangent", 59, 2, 60, 1))
sketch5.addConstraint(Sketcher.Constraint("Tangent", 60, 2, 61, 1))
sketch5.addConstraint(Sketcher.Constraint("Tangent", 61, 2, 62, 1))
sketch5.addConstraint(Sketcher.Constraint("Tangent", 62, 2, 63, 1))
sketch5.addConstraint(Sketcher.Constraint("Tangent", 63, 2, 56, 1))
sketch5.addConstraint(Sketcher.Constraint("Vertical", 0))
sketch5.addConstraint(Sketcher.Constraint("Horizontal", 2))
sketch5.addConstraint(Sketcher.Constraint("Vertical", 4))
sketch5.addConstraint(Sketcher.Constraint("Horizontal", 6))
sketch5.addConstraint(Sketcher.Constraint("Vertical", 8))
sketch5.addConstraint(Sketcher.Constraint("Horizontal", 10))
sketch5.addConstraint(Sketcher.Constraint("Vertical", 12))
sketch5.addConstraint(Sketcher.Constraint("Horizontal", 14))
sketch5.addConstraint(Sketcher.Constraint("Vertical", 16))
sketch5.addConstraint(Sketcher.Constraint("Horizontal", 18))
sketch5.addConstraint(Sketcher.Constraint("Vertical", 20))
sketch5.addConstraint(Sketcher.Constraint("Horizontal", 22))
sketch5.addConstraint(Sketcher.Constraint("Vertical", 24))
sketch5.addConstraint(Sketcher.Constraint("Horizontal", 26))
sketch5.addConstraint(Sketcher.Constraint("Vertical", 28))
sketch5.addConstraint(Sketcher.Constraint("Horizontal", 30))
sketch5.addConstraint(Sketcher.Constraint("Vertical", 32))
sketch5.addConstraint(Sketcher.Constraint("Horizontal", 34))
sketch5.addConstraint(Sketcher.Constraint("Vertical", 36))
sketch5.addConstraint(Sketcher.Constraint("Horizontal", 38))
sketch5.addConstraint(Sketcher.Constraint("Vertical", 40))
sketch5.addConstraint(Sketcher.Constraint("Horizontal", 42))
sketch5.addConstraint(Sketcher.Constraint("Vertical", 44))
sketch5.addConstraint(Sketcher.Constraint("Horizontal", 46))
sketch5.addConstraint(Sketcher.Constraint("Vertical", 48))
sketch5.addConstraint(Sketcher.Constraint("Horizontal", 50))
sketch5.addConstraint(Sketcher.Constraint("Vertical", 52))
sketch5.addConstraint(Sketcher.Constraint("Horizontal", 54))
sketch5.addConstraint(Sketcher.Constraint("Vertical", 56))
sketch5.addConstraint(Sketcher.Constraint("Horizontal", 58))
sketch5.addConstraint(Sketcher.Constraint("Vertical", 60))
sketch5.addConstraint(Sketcher.Constraint("Horizontal", 62))
sketch5.addConstraint(Sketcher.Constraint("Equal", 1, 3))
sketch5.addConstraint(Sketcher.Constraint("Equal", 3, 5))
sketch5.addConstraint(Sketcher.Constraint("Equal", 5, 7))
sketch5.addConstraint(Sketcher.Constraint("Equal", 7, 9))
sketch5.addConstraint(Sketcher.Constraint("Equal", 9, 11))
sketch5.addConstraint(Sketcher.Constraint("Equal", 11, 13))
sketch5.addConstraint(Sketcher.Constraint("Equal", 13, 15))
sketch5.addConstraint(Sketcher.Constraint("Equal", 15, 17))
sketch5.addConstraint(Sketcher.Constraint("Equal", 17, 19))
sketch5.addConstraint(Sketcher.Constraint("Equal", 19, 21))
sketch5.addConstraint(Sketcher.Constraint("Equal", 21, 23))
sketch5.addConstraint(Sketcher.Constraint("Equal", 23, 25))
sketch5.addConstraint(Sketcher.Constraint("Equal", 25, 27))
sketch5.addConstraint(Sketcher.Constraint("Equal", 27, 29))
sketch5.addConstraint(Sketcher.Constraint("Equal", 29, 31))
sketch5.addConstraint(Sketcher.Constraint("Equal", 31, 33))
sketch5.addConstraint(Sketcher.Constraint("Equal", 33, 35))
sketch5.addConstraint(Sketcher.Constraint("Equal", 35, 37))
sketch5.addConstraint(Sketcher.Constraint("Equal", 37, 39))
sketch5.addConstraint(Sketcher.Constraint("Equal", 39, 41))
sketch5.addConstraint(Sketcher.Constraint("Equal", 41, 43))
sketch5.addConstraint(Sketcher.Constraint("Equal", 43, 45))
sketch5.addConstraint(Sketcher.Constraint("Equal", 45, 47))
sketch5.addConstraint(Sketcher.Constraint("Equal", 47, 49))
sketch5.addConstraint(Sketcher.Constraint("Equal", 49, 51))
sketch5.addConstraint(Sketcher.Constraint("Equal", 51, 53))
sketch5.addConstraint(Sketcher.Constraint("Equal", 53, 55))
sketch5.addConstraint(Sketcher.Constraint("Equal", 55, 57))
sketch5.addConstraint(Sketcher.Constraint("Equal", 57, 59))
sketch5.addConstraint(Sketcher.Constraint("Equal", 59, 61))
sketch5.addConstraint(Sketcher.Constraint("Equal", 61, 63))
sketch5.addConstraint(Sketcher.Constraint("Symmetric", 11, 3, 17, 3, -2))
sketch5.addConstraint(Sketcher.Constraint("Symmetric", 15, 3, 21, 3, -2))
sketch5.addConstraint(Sketcher.Constraint("Symmetric", 3, 3, 25, 3, -2))
sketch5.addConstraint(Sketcher.Constraint("Symmetric", 7, 3, 29, 3, -2))
sketch5.addConstraint(Sketcher.Constraint("Symmetric", 43, 3, 49, 3, -2))
sketch5.addConstraint(Sketcher.Constraint("Symmetric", 47, 3, 53, 3, -2))
sketch5.addConstraint(Sketcher.Constraint("Symmetric", 35, 3, 57, 3, -2))
sketch5.addConstraint(Sketcher.Constraint("Symmetric", 39, 3, 61, 3, -2))
sketch5.addConstraint(Sketcher.Constraint("Horizontal", 3, 3, 9, 3))
sketch5.addConstraint(Sketcher.Constraint("Horizontal", 7, 3, 13, 3))
sketch5.addConstraint(Sketcher.Constraint("Horizontal", 35, 3, 41, 3))
sketch5.addConstraint(Sketcher.Constraint("Horizontal", 39, 3, 45, 3))
sketch5.addConstraint(Sketcher.Constraint("Vertical", 31, 3, 33, 3))
sketch5.addConstraint(Sketcher.Constraint("Vertical", 29, 3, 35, 3))
sketch5.addConstraint(Sketcher.Constraint("Vertical", 23, 3, 41, 3))
sketch5.addConstraint(Sketcher.Constraint("Vertical", 21, 3, 43, 3))
sketch5.addConstraint(Sketcher.Constraint("Equal", 6, 10))
sketch5.addConstraint(Sketcher.Constraint("Equal", 62, 0))
sketch5.addConstraint(Sketcher.Constraint("Equal", 28, 32))
sketch5.addConstraint(Sketcher.Constraint("Radius", 1, 2.100001))
sketch5.addConstraint(Sketcher.Constraint("DistanceX", 2, 1, 2, 2, 12.8))
sketch5.addConstraint(Sketcher.Constraint("DistanceX", 1, 3, -1, 1, 46.404999))
sketch5.addConstraint(Sketcher.Constraint("DistanceY", 1, 3, -1, 1, 19.734999))
sketch5.addConstraint(Sketcher.Constraint("DistanceX", 9, 3, -1, 1, 19.734999))
sketch5.addConstraint(Sketcher.Constraint("DistanceY", 33, 3, -1, 1, 46.404999))
sketch5.setExpression("Constraints[146]", "Params.sketch5_radius")
sketch5.setExpression("Constraints[147]", "Params.sketch5_width")
pocket3 = doc.addObject("PartDesign::Pocket", "Pocket002")
body.addObject(pocket3)
pocket3.Profile = sketch5
pocket3.Type = "ThroughAll"

doc.recompute()
